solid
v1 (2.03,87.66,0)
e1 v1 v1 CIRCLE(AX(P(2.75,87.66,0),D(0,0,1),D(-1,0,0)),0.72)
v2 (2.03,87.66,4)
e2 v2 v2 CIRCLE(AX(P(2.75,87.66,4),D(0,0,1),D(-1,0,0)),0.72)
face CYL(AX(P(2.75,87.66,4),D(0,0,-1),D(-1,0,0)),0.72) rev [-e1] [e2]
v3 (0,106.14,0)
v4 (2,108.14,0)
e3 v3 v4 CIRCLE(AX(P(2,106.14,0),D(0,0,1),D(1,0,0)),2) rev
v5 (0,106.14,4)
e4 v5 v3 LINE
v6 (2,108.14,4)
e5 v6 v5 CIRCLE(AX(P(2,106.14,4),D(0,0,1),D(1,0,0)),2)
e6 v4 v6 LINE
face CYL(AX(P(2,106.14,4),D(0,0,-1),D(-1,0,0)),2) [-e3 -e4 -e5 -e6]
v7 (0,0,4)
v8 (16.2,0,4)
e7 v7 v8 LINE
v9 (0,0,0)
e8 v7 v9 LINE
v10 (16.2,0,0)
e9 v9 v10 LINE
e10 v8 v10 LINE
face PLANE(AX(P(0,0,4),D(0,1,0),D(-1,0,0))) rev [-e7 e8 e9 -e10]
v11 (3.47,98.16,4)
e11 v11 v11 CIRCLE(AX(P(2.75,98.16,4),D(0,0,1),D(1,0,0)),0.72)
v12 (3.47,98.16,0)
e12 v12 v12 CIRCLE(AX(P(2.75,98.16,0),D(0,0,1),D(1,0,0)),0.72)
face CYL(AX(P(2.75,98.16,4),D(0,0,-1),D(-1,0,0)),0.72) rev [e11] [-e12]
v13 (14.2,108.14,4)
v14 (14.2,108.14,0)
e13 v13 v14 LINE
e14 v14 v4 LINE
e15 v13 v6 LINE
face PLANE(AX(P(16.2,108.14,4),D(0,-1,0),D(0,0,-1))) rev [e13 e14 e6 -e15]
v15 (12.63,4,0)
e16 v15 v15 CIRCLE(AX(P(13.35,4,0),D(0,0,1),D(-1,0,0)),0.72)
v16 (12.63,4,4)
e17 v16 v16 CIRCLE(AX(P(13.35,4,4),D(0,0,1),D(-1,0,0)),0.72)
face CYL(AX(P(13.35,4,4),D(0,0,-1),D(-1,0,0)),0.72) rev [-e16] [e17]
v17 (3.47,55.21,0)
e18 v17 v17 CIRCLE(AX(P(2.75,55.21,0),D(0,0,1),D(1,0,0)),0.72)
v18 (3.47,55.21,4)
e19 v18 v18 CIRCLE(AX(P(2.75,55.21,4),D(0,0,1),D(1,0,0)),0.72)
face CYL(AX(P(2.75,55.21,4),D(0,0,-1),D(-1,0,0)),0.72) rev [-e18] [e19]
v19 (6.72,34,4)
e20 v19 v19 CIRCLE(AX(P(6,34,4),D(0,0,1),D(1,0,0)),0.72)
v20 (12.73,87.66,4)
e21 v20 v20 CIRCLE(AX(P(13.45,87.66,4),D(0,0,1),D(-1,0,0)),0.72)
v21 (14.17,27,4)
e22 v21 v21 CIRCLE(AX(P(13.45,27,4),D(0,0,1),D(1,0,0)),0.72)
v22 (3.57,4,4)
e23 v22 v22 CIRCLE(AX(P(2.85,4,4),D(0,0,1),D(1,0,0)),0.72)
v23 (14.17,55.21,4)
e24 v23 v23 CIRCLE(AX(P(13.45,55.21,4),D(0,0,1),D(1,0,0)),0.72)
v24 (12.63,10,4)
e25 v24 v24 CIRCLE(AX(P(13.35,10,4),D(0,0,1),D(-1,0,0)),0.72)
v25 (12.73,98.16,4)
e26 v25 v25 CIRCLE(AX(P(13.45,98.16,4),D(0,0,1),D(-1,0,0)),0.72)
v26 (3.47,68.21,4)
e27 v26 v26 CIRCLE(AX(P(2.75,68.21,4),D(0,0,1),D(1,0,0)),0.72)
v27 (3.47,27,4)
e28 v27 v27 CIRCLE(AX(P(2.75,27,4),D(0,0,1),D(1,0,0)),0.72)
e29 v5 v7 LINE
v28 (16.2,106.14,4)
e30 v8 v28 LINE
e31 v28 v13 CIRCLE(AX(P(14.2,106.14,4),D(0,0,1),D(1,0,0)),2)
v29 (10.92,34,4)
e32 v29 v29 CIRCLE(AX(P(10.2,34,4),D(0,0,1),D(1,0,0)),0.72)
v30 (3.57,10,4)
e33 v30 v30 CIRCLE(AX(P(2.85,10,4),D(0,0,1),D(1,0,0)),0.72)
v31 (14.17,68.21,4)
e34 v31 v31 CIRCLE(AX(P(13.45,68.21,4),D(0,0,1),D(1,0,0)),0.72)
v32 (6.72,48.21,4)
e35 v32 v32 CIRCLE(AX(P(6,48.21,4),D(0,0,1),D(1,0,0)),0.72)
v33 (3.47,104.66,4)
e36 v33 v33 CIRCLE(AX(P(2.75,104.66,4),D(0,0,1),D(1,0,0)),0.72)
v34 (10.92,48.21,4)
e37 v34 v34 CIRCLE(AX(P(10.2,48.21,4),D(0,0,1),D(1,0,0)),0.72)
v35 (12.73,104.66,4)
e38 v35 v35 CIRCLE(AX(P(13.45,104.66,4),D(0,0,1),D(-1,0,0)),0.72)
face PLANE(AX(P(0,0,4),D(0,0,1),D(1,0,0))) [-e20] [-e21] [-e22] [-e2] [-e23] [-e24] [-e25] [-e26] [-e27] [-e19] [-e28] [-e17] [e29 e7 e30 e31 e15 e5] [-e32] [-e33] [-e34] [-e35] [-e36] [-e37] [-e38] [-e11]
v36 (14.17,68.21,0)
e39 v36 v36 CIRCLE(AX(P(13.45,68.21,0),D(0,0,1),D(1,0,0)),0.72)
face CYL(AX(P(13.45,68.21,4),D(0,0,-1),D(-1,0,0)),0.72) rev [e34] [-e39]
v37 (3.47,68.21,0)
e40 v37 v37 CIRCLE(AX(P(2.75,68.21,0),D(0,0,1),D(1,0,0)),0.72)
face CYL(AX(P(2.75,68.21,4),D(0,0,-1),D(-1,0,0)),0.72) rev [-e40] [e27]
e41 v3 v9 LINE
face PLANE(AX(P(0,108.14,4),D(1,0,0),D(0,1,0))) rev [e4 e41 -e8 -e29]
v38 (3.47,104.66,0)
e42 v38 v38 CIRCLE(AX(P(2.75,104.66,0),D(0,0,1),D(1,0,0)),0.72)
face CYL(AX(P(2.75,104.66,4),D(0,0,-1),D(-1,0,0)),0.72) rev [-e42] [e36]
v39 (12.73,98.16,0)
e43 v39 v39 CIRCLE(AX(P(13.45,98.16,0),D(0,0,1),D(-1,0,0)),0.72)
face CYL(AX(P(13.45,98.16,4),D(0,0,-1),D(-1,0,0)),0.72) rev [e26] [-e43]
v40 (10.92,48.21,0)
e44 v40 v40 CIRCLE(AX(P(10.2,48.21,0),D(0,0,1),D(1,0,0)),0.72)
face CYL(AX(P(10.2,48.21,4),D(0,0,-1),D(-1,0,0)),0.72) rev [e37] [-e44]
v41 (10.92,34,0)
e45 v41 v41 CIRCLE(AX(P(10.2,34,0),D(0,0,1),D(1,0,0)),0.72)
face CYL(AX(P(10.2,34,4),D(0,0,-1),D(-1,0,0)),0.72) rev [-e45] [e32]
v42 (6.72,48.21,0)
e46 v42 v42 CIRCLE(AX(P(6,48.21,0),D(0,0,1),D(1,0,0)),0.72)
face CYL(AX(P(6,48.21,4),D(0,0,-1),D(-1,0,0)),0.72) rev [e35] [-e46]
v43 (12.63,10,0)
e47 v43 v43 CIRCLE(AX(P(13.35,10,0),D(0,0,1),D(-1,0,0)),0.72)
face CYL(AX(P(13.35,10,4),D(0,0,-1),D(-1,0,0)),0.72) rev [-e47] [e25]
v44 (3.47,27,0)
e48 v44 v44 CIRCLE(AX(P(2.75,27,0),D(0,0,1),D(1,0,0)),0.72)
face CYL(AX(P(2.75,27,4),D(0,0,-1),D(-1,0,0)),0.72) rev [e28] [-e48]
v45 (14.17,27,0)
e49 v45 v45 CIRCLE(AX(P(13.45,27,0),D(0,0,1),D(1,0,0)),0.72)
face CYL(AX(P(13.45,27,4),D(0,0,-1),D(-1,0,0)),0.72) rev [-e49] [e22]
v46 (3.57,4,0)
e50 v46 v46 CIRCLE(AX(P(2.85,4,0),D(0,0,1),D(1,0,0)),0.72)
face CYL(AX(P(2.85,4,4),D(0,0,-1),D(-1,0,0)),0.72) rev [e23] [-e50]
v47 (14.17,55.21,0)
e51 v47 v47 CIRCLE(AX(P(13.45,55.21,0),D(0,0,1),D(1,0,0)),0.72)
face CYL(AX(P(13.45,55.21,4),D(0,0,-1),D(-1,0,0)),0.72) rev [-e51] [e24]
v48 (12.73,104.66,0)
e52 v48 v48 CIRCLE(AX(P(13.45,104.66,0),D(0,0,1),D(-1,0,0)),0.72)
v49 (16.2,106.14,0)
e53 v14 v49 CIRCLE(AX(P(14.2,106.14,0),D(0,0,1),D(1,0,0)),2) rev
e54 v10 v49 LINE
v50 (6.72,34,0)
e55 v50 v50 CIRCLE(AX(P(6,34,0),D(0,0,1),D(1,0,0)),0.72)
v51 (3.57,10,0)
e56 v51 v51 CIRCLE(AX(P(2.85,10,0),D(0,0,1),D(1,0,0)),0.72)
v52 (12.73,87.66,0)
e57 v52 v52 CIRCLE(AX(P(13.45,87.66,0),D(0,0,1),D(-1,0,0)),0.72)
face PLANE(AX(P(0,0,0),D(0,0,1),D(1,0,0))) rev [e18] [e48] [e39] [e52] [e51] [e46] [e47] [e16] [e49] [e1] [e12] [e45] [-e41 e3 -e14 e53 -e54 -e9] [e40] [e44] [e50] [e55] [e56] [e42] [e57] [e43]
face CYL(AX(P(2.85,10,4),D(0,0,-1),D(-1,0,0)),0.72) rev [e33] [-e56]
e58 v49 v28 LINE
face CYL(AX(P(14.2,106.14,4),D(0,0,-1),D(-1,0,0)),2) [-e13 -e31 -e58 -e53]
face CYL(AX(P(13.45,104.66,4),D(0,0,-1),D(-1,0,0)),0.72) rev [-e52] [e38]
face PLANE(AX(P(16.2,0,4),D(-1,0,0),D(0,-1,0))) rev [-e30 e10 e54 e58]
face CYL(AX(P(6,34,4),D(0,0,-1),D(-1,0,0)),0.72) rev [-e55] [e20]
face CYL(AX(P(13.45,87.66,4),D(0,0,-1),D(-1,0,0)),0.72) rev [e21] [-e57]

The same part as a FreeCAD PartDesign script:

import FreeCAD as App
import Part
import Sketcher

V = App.Vector


def edges_at(feature, points):
    """Names of the edges that pass closest to the given points."""
    edges = feature.Shape.Edges
    near = lambda p: min(range(len(edges)), key=lambda i: edges[i].distToShape(Part.Vertex(*p))[0])
    return sorted({f"Edge{near(p) + 1}" for p in points})

doc = App.newDocument("Part")
body = doc.addObject("PartDesign::Body", "Body")

# Sketch on XY plane
sketch1 = doc.addObject("Sketcher::SketchObject", "Sketch")
body.addObject(sketch1)
sketch1.AttachmentSupport = (doc.XY_Plane, [""])
sketch1.MapMode = "FlatFace"
sketch1.addGeometry([
    Part.LineSegment(V(0, 108.14, 0), V(0, 0, 0)),  # 0
    Part.LineSegment(V(0, 0, 0), V(16.2, 0, 0)),  # 1
    Part.LineSegment(V(16.2, 0, 0), V(16.2, 108.14, 0)),  # 2
    Part.LineSegment(V(16.2, 108.14, 0), V(0, 108.14, 0)),  # 3
    Part.Circle(V(2.85, 4, 0), V(0, 0, 1), 0.72),  # 4
    Part.Circle(V(2.85, 10, 0), V(0, 0, 1), 0.72),  # 5
    Part.Circle(V(2.75, 27, 0), V(0, 0, 1), 0.72),  # 6
    Part.Circle(V(6, 34, 0), V(0, 0, 1), 0.72),  # 7
    Part.Circle(V(6, 48.21, 0), V(0, 0, 1), 0.72),  # 8
    Part.Circle(V(13.35, 4, 0), V(0, 0, 1), 0.72),  # 9
    Part.Circle(V(13.35, 10, 0), V(0, 0, 1), 0.72),  # 10
    Part.Circle(V(13.45, 27, 0), V(0, 0, 1), 0.72),  # 11
    Part.Circle(V(10.2, 34, 0), V(0, 0, 1), 0.72),  # 12
    Part.Circle(V(10.2, 48.21, 0), V(0, 0, 1), 0.72),  # 13
    Part.Circle(V(2.75, 55.21, 0), V(0, 0, 1), 0.72),  # 14
    Part.Circle(V(2.75, 68.21, 0), V(0, 0, 1), 0.72),  # 15
    Part.Circle(V(2.75, 87.66, 0), V(0, 0, 1), 0.72),  # 16
    Part.Circle(V(2.75, 98.16, 0), V(0, 0, 1), 0.72),  # 17
    Part.Circle(V(2.75, 104.66, 0), V(0, 0, 1), 0.72),  # 18
    Part.Circle(V(13.45, 55.21, 0), V(0, 0, 1), 0.72),  # 19
    Part.Circle(V(13.45, 68.21, 0), V(0, 0, 1), 0.72),  # 20
    Part.Circle(V(13.45, 87.66, 0), V(0, 0, 1), 0.72),  # 21
    Part.Circle(V(13.45, 98.16, 0), V(0, 0, 1), 0.72),  # 22
    Part.Circle(V(13.45, 104.66, 0), V(0, 0, 1), 0.72),  # 23
], False)
sketch1.addConstraint([
    Sketcher.Constraint("Coincident", 0, 2, 1, 1),
    Sketcher.Constraint("Coincident", 1, 2, 2, 1),
    Sketcher.Constraint("Coincident", 2, 2, 3, 1),
    Sketcher.Constraint("Coincident", 3, 2, 0, 1),
    Sketcher.Constraint("Vertical", 0),
    Sketcher.Constraint("Horizontal", 1),
    Sketcher.Constraint("Vertical", 2),
    Sketcher.Constraint("Horizontal", 3),
    Sketcher.Constraint("Coincident", 0, 2, -1, 1),
    Sketcher.Constraint("Equal", 4, 5),
    Sketcher.Constraint("Equal", 5, 6),
    Sketcher.Constraint("Equal", 6, 7),
    Sketcher.Constraint("Equal", 7, 8),
    Sketcher.Constraint("Equal", 8, 9),
    Sketcher.Constraint("Equal", 9, 10),
    Sketcher.Constraint("Equal", 10, 11),
    Sketcher.Constraint("Equal", 11, 12),
    Sketcher.Constraint("Equal", 12, 13),
    Sketcher.Constraint("Equal", 13, 14),
    Sketcher.Constraint("Equal", 14, 15),
    Sketcher.Constraint("Equal", 15, 16),
    Sketcher.Constraint("Equal", 16, 17),
    Sketcher.Constraint("Equal", 17, 18),
    Sketcher.Constraint("Equal", 18, 19),
    Sketcher.Constraint("Equal", 19, 20),
    Sketcher.Constraint("Equal", 20, 21),
    Sketcher.Constraint("Equal", 21, 22),
    Sketcher.Constraint("Equal", 22, 23),
    Sketcher.Constraint("Horizontal", 4, 3, 9, 3),
    Sketcher.Constraint("Horizontal", 5, 3, 10, 3),
    Sketcher.Constraint("Horizontal", 6, 3, 11, 3),
    Sketcher.Constraint("Horizontal", 7, 3, 12, 3),
    Sketcher.Constraint("Horizontal", 8, 3, 13, 3),
    Sketcher.Constraint("Horizontal", 14, 3, 19, 3),
    Sketcher.Constraint("Horizontal", 15, 3, 20, 3),
    Sketcher.Constraint("Horizontal", 16, 3, 21, 3),
    Sketcher.Constraint("Horizontal", 17, 3, 22, 3),
    Sketcher.Constraint("Horizontal", 18, 3, 23, 3),
    Sketcher.Constraint("Vertical", 4, 3, 5, 3),
    Sketcher.Constraint("Vertical", 7, 3, 8, 3),
    Sketcher.Constraint("Vertical", 9, 3, 10, 3),
    Sketcher.Constraint("Vertical", 12, 3, 13, 3),
    Sketcher.Constraint("Vertical", 6, 3, 14, 3),
    Sketcher.Constraint("Vertical", 14, 3, 15, 3),
    Sketcher.Constraint("Vertical", 15, 3, 16, 3),
    Sketcher.Constraint("Vertical", 16, 3, 17, 3),
    Sketcher.Constraint("Vertical", 17, 3, 18, 3),
    Sketcher.Constraint("Vertical", 11, 3, 19, 3),
    Sketcher.Constraint("Vertical", 19, 3, 20, 3),
    Sketcher.Constraint("Vertical", 20, 3, 21, 3),
    Sketcher.Constraint("Vertical", 21, 3, 22, 3),
    Sketcher.Constraint("Vertical", 22, 3, 23, 3),
    Sketcher.Constraint("Diameter", 4, 1.44),
    Sketcher.Constraint("DistanceX", 1, 1, 1, 2, 16.2),
    Sketcher.Constraint("DistanceY", -1, 1, 4, 3, 4.0),
    Sketcher.Constraint("DistanceY", -1, 1, 5, 3, 10.0),
    Sketcher.Constraint("DistanceY", -1, 1, 6, 3, 27.0),
    Sketcher.Constraint("DistanceX", -1, 1, 7, 3, 6.0),
    Sketcher.Constraint("DistanceY", -1, 1, 7, 3, 34.0),
    Sketcher.Constraint("DistanceY", 8, 3, 14, 3, 7.0),
    Sketcher.Constraint("DistanceY", 14, 3, 15, 3, 13.0),
    Sketcher.Constraint("DistanceY", 16, 3, 18, 3, 17.0),
    Sketcher.Constraint("DistanceY", 0, 2, 0, 1, 108.14),
    Sketcher.Constraint("DistanceX", -1, 1, 12, 3, 10.2),
    Sketcher.Constraint("DistanceX", 6, 3, 5, 3, 0.1),
    Sketcher.Constraint("DistanceX", 4, 3, 9, 3, 10.5),
    Sketcher.Constraint("DistanceX", 6, 3, 11, 3, 10.7),
    Sketcher.Constraint("DistanceY", 16, 3, 17, 3, 10.5),
    Sketcher.Constraint("DistanceX", -1, 1, 4, 3, 2.85),
    Sketcher.Constraint("DistanceY", -1, 1, 8, 3, 48.21),
    Sketcher.Constraint("DistanceY", -1, 1, 16, 3, 87.66),
])
pad1 = doc.addObject("PartDesign::Pad", "Pad")
body.addObject(pad1)
pad1.Profile = sketch1
pad1.Length = 4
doc.recompute()

fillet = doc.addObject("PartDesign::Fillet", "Fillet")
body.addObject(fillet)
fillet.Base = (pad1, edges_at(pad1, [(0, 108.14, 2), (16.2, 108.14, 2)]))
fillet.Radius = 2

doc.recompute()
